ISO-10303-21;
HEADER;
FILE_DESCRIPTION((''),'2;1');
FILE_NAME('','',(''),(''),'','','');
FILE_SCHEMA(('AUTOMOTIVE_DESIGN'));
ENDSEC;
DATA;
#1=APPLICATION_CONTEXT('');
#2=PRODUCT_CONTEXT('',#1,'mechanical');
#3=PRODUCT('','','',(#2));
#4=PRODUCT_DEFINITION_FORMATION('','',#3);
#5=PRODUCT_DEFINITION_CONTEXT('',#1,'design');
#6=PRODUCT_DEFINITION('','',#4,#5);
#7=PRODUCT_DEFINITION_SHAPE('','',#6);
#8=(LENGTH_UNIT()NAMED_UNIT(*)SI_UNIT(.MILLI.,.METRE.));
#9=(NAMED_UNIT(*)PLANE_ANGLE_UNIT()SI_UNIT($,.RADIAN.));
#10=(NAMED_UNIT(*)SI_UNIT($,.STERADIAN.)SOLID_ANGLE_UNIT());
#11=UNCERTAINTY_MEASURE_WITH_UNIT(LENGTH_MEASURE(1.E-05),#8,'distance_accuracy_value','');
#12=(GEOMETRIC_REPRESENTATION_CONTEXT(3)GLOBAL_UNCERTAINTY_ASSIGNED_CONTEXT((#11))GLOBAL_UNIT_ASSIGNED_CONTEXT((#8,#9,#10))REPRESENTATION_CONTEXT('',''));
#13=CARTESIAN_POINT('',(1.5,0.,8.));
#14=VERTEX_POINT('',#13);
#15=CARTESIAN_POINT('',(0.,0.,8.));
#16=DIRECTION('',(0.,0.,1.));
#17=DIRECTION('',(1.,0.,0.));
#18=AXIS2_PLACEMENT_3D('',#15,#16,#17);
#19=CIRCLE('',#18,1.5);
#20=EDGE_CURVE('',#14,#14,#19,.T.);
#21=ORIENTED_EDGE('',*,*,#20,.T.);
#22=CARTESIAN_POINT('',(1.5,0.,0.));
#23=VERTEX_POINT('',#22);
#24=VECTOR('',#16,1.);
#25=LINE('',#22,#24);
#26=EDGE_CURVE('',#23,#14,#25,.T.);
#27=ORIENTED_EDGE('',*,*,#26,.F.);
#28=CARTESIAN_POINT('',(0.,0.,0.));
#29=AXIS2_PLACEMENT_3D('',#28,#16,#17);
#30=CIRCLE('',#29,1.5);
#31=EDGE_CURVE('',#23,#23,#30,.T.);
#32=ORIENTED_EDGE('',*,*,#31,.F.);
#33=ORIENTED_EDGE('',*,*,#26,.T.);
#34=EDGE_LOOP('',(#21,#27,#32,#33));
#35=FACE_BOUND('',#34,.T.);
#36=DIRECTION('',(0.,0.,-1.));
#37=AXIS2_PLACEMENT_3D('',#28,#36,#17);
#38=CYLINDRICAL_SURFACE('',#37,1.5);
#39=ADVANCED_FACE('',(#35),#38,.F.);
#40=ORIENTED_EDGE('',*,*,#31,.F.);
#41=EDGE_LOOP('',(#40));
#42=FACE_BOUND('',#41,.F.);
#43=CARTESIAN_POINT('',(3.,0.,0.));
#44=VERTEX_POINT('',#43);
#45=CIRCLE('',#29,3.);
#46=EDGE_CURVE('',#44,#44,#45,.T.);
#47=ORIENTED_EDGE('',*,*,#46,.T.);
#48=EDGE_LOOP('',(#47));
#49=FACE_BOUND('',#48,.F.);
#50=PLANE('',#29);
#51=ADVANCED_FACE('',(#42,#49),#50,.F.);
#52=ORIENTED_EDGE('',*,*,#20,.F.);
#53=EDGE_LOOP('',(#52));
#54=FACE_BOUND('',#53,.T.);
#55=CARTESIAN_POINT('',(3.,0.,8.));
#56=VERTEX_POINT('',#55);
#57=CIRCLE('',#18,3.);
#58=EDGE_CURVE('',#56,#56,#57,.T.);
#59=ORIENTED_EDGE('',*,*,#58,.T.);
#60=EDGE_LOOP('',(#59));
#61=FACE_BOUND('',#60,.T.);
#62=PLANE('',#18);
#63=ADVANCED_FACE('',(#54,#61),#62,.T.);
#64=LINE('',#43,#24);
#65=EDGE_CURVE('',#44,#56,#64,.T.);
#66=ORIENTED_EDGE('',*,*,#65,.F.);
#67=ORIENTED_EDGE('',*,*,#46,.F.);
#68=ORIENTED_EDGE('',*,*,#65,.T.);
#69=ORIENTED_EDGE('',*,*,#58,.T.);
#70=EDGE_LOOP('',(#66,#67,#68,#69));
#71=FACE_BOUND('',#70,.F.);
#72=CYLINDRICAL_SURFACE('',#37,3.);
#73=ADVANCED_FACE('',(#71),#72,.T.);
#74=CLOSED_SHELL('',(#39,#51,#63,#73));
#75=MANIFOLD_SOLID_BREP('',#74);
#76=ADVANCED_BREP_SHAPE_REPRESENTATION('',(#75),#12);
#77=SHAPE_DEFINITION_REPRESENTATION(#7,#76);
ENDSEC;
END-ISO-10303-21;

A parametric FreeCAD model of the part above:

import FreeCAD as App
import Part
import Sketcher
Q = App.Units.Quantity

doc = App.newDocument("Part")
params = doc.addObject("Spreadsheet::Sheet", "Params")
for row, (alias, value) in enumerate([
    ("sketch1_diameter", "6 mm"),
    ("sketch1_diameter2", "3 mm"),
    ("pad1_length", "8 mm"),
], start=1):
    params.set(f"A{row}", alias)
    params.set(f"B{row}", "=" + value)
    params.setAlias(f"B{row}", alias)

body = doc.addObject("PartDesign::Body", "Body")

sketch1 = doc.addObject("Sketcher::SketchObject", "Sketch")
body.addObject(sketch1)
sketch1.AttachmentSupport = (doc.XY_Plane, [""])
sketch1.MapMode = "FlatFace"
sketch1.addGeometry([
    Part.Circle(App.Vector(0, 0, 0), App.Vector(0, 0, 1), 3),
    Part.Circle(App.Vector(0, 0, 0), App.Vector(0, 0, 1), 1.5),
], False)
sketch1.addConstraint([
    Sketcher.Constraint("Coincident", 0, 3, -1, 1),
    Sketcher.Constraint("Coincident", 1, 3, -1, 1),
    Sketcher.Constraint("Diameter", 0, Q("6 mm")),
    Sketcher.Constraint("Diameter", 1, Q("3 mm")),
])
sketch1.setExpression("Constraints[2]", "Params.sketch1_diameter")
sketch1.setExpression("Constraints[3]", "Params.sketch1_diameter2")
pad1 = doc.addObject("PartDesign::Pad", "Pad")
body.addObject(pad1)
pad1.Profile = sketch1
pad1.setExpression("Length", "Params.pad1_length")

doc.recompute()
